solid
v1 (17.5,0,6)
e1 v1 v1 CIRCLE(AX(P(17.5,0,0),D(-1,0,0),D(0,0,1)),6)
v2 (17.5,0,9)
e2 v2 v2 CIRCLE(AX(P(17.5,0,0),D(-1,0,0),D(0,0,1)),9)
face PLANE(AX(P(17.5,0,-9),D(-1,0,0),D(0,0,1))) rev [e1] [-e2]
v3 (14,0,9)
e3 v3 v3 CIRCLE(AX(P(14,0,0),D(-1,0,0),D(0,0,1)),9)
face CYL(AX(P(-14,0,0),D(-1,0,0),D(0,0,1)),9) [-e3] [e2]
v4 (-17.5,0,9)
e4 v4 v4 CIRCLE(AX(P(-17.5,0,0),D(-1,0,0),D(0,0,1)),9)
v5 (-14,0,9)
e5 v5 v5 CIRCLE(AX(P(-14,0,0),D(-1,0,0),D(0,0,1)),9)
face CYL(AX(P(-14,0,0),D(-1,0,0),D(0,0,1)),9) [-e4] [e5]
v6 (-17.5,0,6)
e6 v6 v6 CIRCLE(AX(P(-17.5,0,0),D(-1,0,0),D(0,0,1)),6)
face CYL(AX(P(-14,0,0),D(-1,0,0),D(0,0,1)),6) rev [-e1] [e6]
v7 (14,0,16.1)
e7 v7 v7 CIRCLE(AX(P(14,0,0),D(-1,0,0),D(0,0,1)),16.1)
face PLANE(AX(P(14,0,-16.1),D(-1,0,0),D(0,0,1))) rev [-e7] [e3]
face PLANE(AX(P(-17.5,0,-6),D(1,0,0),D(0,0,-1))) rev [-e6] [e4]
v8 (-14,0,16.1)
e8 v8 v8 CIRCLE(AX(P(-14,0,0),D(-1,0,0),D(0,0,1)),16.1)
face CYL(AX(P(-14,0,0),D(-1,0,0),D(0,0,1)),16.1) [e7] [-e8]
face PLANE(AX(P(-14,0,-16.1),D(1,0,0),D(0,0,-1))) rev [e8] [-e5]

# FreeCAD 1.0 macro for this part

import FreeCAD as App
import Part
import Sketcher


def add_polygon(sketch, points):
    """Adds a closed chain of lines whose ends are joined by coincident constraints."""
    first, n = sketch.GeometryCount, len(points)
    for a, b in zip(points, points[1:] + points[:1]):
        sketch.addGeometry(Part.LineSegment(App.Vector(*a, 0), App.Vector(*b, 0)), False)
    for i in range(n):
        sketch.addConstraint(Sketcher.Constraint("Coincident", first + i, 2, first + (i + 1) % n, 1))

doc = App.newDocument("Part")
body = doc.addObject("PartDesign::Body", "Body")

# Sketch on XZ plane
sketch1 = body.newObject("Sketcher::SketchObject", "Sketch")
sketch1.AttachmentSupport = (doc.getObject("XZ_Plane"), [""])
sketch1.MapMode = "FlatFace"
add_polygon(sketch1, [(-17.5, -6), (-14, -6), (-14, 0), (14, 0), (14, -6), (17.5, -6), (17.5, -9), (14, -9), (14, -16.1), (-14, -16.1), (-14, -9), (-17.5, -9)])  # lines 0-11
sketch1.addConstraint([
    Sketcher.Constraint("Horizontal", 0),
    Sketcher.Constraint("Vertical", 1),
    Sketcher.Constraint("Horizontal", 2),
    Sketcher.Constraint("Vertical", 3),
    Sketcher.Constraint("Horizontal", 4),
    Sketcher.Constraint("Vertical", 5),
    Sketcher.Constraint("Horizontal", 6),
    Sketcher.Constraint("Vertical", 7),
    Sketcher.Constraint("Horizontal", 8),
    Sketcher.Constraint("Vertical", 9),
    Sketcher.Constraint("Horizontal", 10),
    Sketcher.Constraint("Vertical", 11),
    Sketcher.Constraint("Symmetric", 1, 2, 2, 2, -1, 1),
    Sketcher.Constraint("Symmetric", 6, 2, 9, 2, -2),
    Sketcher.Constraint("Symmetric", 4, 2, 11, 2, -2),
    Sketcher.Constraint("Vertical", 3, 2, 6, 2),
    Sketcher.Constraint("DistanceX", 2, 1, 2, 2, 28.0),
    Sketcher.Constraint("DistanceY", 1, 1, 1, 2, 6.0),
    Sketcher.Constraint("DistanceY", 5, 2, 5, 1, 3.0),
    Sketcher.Constraint("DistanceX", 0, 1, 0, 2, 3.5),
    Sketcher.Constraint("DistanceY", 7, 2, 7, 1, 7.1),
])
revolution = body.newObject("PartDesign::Revolution", "Revolution")
revolution.Profile = sketch1
revolution.ReferenceAxis = (sketch1, ["H_Axis"])
revolution.Angle = 360

# Sketch on YZ plane
sketch2 = body.newObject("Sketcher::SketchObject", "Sketch001")
sketch2.AttachmentSupport = (doc.getObject("YZ_Plane"), [""])
sketch2.MapMode = "FlatFace"
sketch2.AttachmentOffset = App.Placement(App.Vector(0, 0, -14), App.Rotation())
sketch2.addGeometry(Part.Circle(App.Vector(0, 0, 0), App.Vector(0, 0, 1), 6), False)
sketch2.addConstraint([
    Sketcher.Constraint("Coincident", 0, 3, -1, 1),
    Sketcher.Constraint("Diameter", 0, 12.0),
])
pocket1 = body.newObject("PartDesign::Pocket", "Pocket")
pocket1.Profile = sketch2
pocket1.Length = 28
pocket1.Reversed = True

doc.recompute()
